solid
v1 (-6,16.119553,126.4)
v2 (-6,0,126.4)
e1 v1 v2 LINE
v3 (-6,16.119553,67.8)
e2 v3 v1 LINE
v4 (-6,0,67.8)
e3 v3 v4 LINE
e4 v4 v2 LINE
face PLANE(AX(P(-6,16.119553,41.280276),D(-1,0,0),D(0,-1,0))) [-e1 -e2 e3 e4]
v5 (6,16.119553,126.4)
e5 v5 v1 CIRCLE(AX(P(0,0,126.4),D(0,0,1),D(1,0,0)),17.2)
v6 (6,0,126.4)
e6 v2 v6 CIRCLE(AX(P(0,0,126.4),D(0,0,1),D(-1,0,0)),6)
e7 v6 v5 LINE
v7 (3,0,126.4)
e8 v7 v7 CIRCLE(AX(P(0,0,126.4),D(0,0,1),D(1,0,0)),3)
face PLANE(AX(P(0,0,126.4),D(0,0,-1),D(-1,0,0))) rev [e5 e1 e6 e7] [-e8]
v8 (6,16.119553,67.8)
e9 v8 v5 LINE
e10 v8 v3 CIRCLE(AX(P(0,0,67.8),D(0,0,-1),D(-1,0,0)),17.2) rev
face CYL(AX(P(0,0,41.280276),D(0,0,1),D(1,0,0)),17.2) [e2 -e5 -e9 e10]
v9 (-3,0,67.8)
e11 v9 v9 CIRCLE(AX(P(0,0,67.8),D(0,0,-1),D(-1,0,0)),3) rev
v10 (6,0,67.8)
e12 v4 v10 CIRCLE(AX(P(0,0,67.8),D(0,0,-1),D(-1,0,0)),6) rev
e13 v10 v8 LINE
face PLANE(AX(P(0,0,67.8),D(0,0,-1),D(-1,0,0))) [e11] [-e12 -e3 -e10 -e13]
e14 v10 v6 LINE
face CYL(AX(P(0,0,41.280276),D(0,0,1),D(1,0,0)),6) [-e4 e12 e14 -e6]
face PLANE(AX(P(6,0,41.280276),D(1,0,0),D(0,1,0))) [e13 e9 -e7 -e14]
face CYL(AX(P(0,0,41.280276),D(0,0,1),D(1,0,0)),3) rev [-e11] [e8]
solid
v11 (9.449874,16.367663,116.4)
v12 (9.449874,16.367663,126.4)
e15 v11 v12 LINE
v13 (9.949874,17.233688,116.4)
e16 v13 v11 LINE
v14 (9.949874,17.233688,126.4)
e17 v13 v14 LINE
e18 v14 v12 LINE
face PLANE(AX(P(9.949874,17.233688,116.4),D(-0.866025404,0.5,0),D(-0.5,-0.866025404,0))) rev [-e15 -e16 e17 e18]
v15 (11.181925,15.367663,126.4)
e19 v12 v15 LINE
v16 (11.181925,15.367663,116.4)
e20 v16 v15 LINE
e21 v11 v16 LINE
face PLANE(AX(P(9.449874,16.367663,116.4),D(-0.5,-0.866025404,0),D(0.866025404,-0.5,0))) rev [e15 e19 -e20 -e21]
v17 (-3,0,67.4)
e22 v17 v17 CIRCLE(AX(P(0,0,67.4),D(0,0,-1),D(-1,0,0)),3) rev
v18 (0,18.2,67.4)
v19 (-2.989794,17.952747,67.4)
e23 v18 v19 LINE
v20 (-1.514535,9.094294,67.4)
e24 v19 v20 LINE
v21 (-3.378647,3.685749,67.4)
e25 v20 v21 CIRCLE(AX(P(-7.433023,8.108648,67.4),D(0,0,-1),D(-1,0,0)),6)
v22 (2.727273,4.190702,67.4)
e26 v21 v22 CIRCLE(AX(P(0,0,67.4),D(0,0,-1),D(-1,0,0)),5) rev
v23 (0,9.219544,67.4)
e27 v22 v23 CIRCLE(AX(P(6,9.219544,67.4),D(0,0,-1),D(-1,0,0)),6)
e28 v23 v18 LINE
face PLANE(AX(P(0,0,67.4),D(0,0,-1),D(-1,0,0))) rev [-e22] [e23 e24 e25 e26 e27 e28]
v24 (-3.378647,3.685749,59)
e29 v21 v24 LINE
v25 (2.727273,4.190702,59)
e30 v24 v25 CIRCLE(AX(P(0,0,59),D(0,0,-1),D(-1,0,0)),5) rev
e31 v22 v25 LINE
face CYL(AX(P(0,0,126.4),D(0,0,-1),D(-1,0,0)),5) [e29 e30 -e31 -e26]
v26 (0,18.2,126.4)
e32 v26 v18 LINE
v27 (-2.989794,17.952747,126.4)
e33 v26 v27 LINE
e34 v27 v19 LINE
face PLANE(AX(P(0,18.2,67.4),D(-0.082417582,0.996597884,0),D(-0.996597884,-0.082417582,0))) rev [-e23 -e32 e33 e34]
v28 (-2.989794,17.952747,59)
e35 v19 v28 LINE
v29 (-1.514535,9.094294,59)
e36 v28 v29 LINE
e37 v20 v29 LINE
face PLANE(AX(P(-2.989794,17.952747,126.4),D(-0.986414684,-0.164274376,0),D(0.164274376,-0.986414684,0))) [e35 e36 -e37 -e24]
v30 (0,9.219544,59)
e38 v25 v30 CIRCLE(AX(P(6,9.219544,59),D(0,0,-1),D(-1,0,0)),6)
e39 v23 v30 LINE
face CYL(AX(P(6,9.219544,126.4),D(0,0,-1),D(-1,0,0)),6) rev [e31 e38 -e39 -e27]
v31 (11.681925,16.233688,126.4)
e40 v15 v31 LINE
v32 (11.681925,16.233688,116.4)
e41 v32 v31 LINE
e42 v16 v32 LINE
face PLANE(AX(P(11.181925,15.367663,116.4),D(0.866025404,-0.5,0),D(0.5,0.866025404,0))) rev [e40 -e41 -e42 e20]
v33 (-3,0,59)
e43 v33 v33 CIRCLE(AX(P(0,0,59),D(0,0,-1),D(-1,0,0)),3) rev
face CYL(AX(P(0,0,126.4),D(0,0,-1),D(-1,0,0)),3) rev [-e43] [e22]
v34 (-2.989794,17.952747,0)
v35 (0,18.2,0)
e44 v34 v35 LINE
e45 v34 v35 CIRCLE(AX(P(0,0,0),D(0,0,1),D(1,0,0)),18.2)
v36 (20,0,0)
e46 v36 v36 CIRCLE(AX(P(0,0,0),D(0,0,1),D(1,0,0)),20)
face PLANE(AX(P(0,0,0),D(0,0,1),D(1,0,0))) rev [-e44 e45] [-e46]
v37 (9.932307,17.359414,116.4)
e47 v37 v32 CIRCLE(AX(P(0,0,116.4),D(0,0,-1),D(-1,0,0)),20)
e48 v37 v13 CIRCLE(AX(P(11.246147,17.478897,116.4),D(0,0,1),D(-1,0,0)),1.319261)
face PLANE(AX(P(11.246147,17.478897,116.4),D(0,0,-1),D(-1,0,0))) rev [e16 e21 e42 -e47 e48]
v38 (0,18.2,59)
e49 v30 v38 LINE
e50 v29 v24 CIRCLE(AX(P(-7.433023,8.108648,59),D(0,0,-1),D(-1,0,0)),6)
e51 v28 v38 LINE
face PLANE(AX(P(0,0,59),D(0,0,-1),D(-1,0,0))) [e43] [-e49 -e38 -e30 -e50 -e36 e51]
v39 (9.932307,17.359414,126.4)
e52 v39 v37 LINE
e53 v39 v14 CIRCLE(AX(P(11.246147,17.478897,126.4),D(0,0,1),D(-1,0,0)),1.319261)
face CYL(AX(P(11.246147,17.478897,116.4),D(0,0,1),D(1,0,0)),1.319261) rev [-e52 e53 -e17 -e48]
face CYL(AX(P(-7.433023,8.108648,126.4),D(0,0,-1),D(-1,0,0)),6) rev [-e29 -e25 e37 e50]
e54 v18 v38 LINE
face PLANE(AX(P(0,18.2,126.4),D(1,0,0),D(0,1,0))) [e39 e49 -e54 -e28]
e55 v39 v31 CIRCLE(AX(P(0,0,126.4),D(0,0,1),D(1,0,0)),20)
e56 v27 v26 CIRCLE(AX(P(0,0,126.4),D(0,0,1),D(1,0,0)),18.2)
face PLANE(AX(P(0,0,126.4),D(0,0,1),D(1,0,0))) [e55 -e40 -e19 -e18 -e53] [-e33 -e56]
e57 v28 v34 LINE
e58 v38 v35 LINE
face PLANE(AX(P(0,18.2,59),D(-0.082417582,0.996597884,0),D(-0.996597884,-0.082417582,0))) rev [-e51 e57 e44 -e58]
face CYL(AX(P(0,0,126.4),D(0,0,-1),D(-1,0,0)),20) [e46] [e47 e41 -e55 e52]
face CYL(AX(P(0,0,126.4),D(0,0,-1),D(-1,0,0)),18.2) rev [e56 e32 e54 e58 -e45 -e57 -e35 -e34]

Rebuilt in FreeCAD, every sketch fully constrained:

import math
import FreeCAD as App
import Part
import Sketcher
Q = App.Units.Quantity

doc = App.newDocument("Part")
body = doc.addObject("PartDesign::Body", "Body")

sketch1 = body.newObject("Sketcher::SketchObject", "Sketch")
sketch1.AttachmentSupport = (doc.getObject("XY_Plane"), [""])
sketch1.MapMode = "FlatFace"
sketch1.addGeometry([
    Part.Circle(App.Vector(0, 0, 0), App.Vector(0, 0, 1), 20),
    Part.Circle(App.Vector(0, 0, 0), App.Vector(0, 0, 1), 18),
], False)
sketch1.addConstraint([
    Sketcher.Constraint("Coincident", 0, 3, -1, 1),
    Sketcher.Constraint("Coincident", 1, 3, -1, 1),
    Sketcher.Constraint("Diameter", 0, 40.0),
    Sketcher.Constraint("Diameter", 1, 36.4),
])
pad1 = body.newObject("PartDesign::Pad", "Pad")
pad1.Profile = sketch1
pad1.Length = 126.4

sketch2 = body.newObject("Sketcher::SketchObject", "Sketch001")
sketch2.AttachmentSupport = (doc.getObject("XY_Plane"), [""])
sketch2.MapMode = "FlatFace"
sketch2.addGeometry([
    Part.LineSegment(App.Vector(0, 18.2, 0), App.Vector(0, 9.2, 0)),
    Part.ArcOfCircle(Part.Circle(App.Vector(6, 9.2, 0), App.Vector(0, 0, 1), 6), math.radians(-180), math.radians(-123)),
    Part.ArcOfCircle(Part.Circle(App.Vector(0, 0, 0), App.Vector(0, 0, 1), 5), math.radians(133), math.radians(417)),
    Part.ArcOfCircle(Part.Circle(App.Vector(-7.4, 8.1, 0), App.Vector(0, 0, 1), 6), math.radians(-47), math.radians(9)),
    Part.LineSegment(App.Vector(-1.5, 9.1, 0), App.Vector(-3, 18, 0)),
    Part.ArcOfCircle(Part.Circle(App.Vector(0, 0, 0), App.Vector(0, 0, 1), 18.2), math.radians(90), math.radians(99.46)),
    Part.Circle(App.Vector(0, 0, 0), App.Vector(0, 0, 1), 3),
], False)
sketch2.addConstraint([
    Sketcher.Constraint("Tangent", 0, 2, 1, 1),
    Sketcher.Constraint("Tangent", 1, 2, 2, 2),
    Sketcher.Constraint("Tangent", 2, 1, 3, 1),
    Sketcher.Constraint("Tangent", 3, 2, 4, 1),
    Sketcher.Constraint("Coincident", 4, 2, 5, 2),
    Sketcher.Constraint("Coincident", 5, 1, 0, 1),
    Sketcher.Constraint("Vertical", 0),
    Sketcher.Constraint("Coincident", 2, 3, -1, 1),
    Sketcher.Constraint("Coincident", 5, 3, -1, 1),
    Sketcher.Constraint("Coincident", 6, 3, -1, 1),
    Sketcher.Constraint("Equal", 1, 3),
    Sketcher.Constraint("PointOnObject", 0, 2, -2),
    Sketcher.Constraint("Diameter", 6, 6.0),
    Sketcher.Constraint("Radius", 1, 6.0),
    Sketcher.Constraint("Radius", 2, 5.0),
    Sketcher.Constraint("Radius", 5, 18.2),
    Sketcher.Constraint("DistanceY", 2, 1, 4, 2, 14.266998),
    Sketcher.Constraint("DistanceY", 2, 1, 3, 3, 4.422899),
])
pad2 = body.newObject("PartDesign::Pad", "Pad001")
pad2.Profile = sketch2
pad2.Length = 126.4

sketch3 = body.newObject("Sketcher::SketchObject", "Sketch002")
sketch3.AttachmentSupport = (doc.getObject("XY_Plane"), [""])
sketch3.MapMode = "FlatFace"
sketch3.addGeometry([
    Part.LineSegment(App.Vector(-3, 18, 0), App.Vector(0, 18.2, 0)),
    Part.ArcOfCircle(Part.Circle(App.Vector(0, 0, 0), App.Vector(0, 0, 1), 18.2), math.radians(99), math.radians(450)),
], False)
sketch3.addConstraint([
    Sketcher.Constraint("Coincident", 0, 1, 1, 1),
    Sketcher.Constraint("Coincident", 1, 2, 0, 2),
    Sketcher.Constraint("Coincident", 1, 3, -1, 1),
    Sketcher.Constraint("PointOnObject", 1, 2, -2),
    Sketcher.Constraint("Radius", 1, 18.2),
    Sketcher.Constraint("Distance", 0, 3.0),
])
pocket1 = body.newObject("PartDesign::Pocket", "Pocket")
pocket1.Profile = sketch3
pocket1.Length = 59
pocket1.Reversed = True

sketch4 = body.newObject("Sketcher::SketchObject", "Sketch003")
sketch4.AttachmentSupport = (doc.getObject("XY_Plane"), [""])
sketch4.MapMode = "FlatFace"
sketch4.AttachmentOffset = App.Placement(App.Vector(0, 0, 126.4), App.Rotation())
sketch4.addGeometry([
    Part.LineSegment(App.Vector(0, 18.2, 0), App.Vector(-3, 18, 0)),
    Part.ArcOfCircle(Part.Circle(App.Vector(0, 0, 0), App.Vector(0, 0, 1), 18.2), math.radians(99), math.radians(450)),
], False)
sketch4.addConstraint([
    Sketcher.Constraint("Coincident", 0, 1, 1, 2),
    Sketcher.Constraint("Coincident", 1, 1, 0, 2),
    Sketcher.Constraint("Coincident", 1, 3, -1, 1),
    Sketcher.Constraint("PointOnObject", 0, 1, -2),
    Sketcher.Constraint("Radius", 1, 18.2),
    Sketcher.Constraint("Distance", 0, 3.0),
])
pocket2 = body.newObject("PartDesign::Pocket", "Pocket001")
pocket2.Profile = sketch4
pocket2.Length = 59

sketch5 = body.newObject("Sketcher::SketchObject", "Sketch004")
sketch5.AttachmentSupport = (doc.getObject("XY_Plane"), [""])
sketch5.MapMode = "FlatFace"
sketch5.AttachmentOffset = App.Placement(App.Vector(0, 0, 126.4), App.Rotation())
sketch5.addGeometry([
    Part.LineSegment(App.Vector(9.9, 17.2, 0), App.Vector(9.4, 16.4, 0)),
    Part.LineSegment(App.Vector(9.4, 16.4, 0), App.Vector(11.2, 15.4, 0)),
    Part.LineSegment(App.Vector(11.2, 15.4, 0), App.Vector(11.7, 16.2, 0)),
    Part.ArcOfCircle(Part.Circle(App.Vector(11.2, 17.5, 0), App.Vector(0, 0, 1), 1.3), math.radians(-71), math.radians(191)),
], False)
sketch5.addConstraint([
    Sketcher.Constraint("Coincident", 0, 2, 1, 1),
    Sketcher.Constraint("Coincident", 1, 2, 2, 1),
    Sketcher.Constraint("Coincident", 2, 2, 3, 1),
    Sketcher.Constraint("Coincident", 3, 2, 0, 1),
    Sketcher.Constraint("Perpendicular", 0, 1),
    Sketcher.Constraint("Perpendicular", 1, 2),
    Sketcher.Constraint("Equal", 0, 2),
    Sketcher.Constraint("Angle", 0, Q("-120 deg")),
    Sketcher.Constraint("Distance", 0, 1.0),
    Sketcher.Constraint("Distance", 1, 2.0),
    Sketcher.Constraint("Radius", 3, 1.319261),
    Sketcher.Constraint("DistanceX", -1, 1, 3, 3, 11.246147),
    Sketcher.Constraint("DistanceY", -1, 1, 3, 3, 17.478897),
])
pocket3 = body.newObject("PartDesign::Pocket", "Pocket002")
pocket3.Profile = sketch5
pocket3.Length = 10
body2 = doc.addObject("PartDesign::Body", "Body001")

sketch6 = body2.newObject("Sketcher::SketchObject", "Sketch005")
sketch6.AttachmentSupport = (doc.getObject("XY_Plane001"), [""])
sketch6.MapMode = "FlatFace"
sketch6.AttachmentOffset = App.Placement(App.Vector(0, 0, 126.4), App.Rotation())
sketch6.addGeometry([
    Part.LineSegment(App.Vector(6, 0, 0), App.Vector(6, 16.1, 0)),
    Part.ArcOfCircle(Part.Circle(App.Vector(0, 0, 0), App.Vector(0, 0, 1), 17.2), math.radians(70), math.radians(110)),
    Part.LineSegment(App.Vector(-6, 16.1, 0), App.Vector(-6, 0, 0)),
    Part.ArcOfCircle(Part.Circle(App.Vector(0, 0, 0), App.Vector(0, 0, 1), 6), math.radians(180), math.radians(360)),
    Part.Circle(App.Vector(0, 0, 0), App.Vector(0, 0, 1), 3),
], False)
sketch6.addConstraint([
    Sketcher.Constraint("Coincident", 0, 2, 1, 1),
    Sketcher.Constraint("Coincident", 1, 2, 2, 1),
    Sketcher.Constraint("Tangent", 2, 2, 3, 1),
    Sketcher.Constraint("Tangent", 3, 2, 0, 1),
    Sketcher.Constraint("Vertical", 0),
    Sketcher.Constraint("Vertical", 2),
    Sketcher.Constraint("Coincident", 1, 3, -1, 1),
    Sketcher.Constraint("Coincident", 3, 3, -1, 1),
    Sketcher.Constraint("Coincident", 4, 3, -1, 1),
    Sketcher.Constraint("Diameter", 4, 6.0),
    Sketcher.Constraint("Radius", 3, 6.0),
    Sketcher.Constraint("Radius", 1, 17.2),
])
pad3 = body2.newObject("PartDesign::Pad", "Pad002")
pad3.Profile = sketch6
pad3.Length = 58.6
pad3.Reversed = True

doc.recompute()
